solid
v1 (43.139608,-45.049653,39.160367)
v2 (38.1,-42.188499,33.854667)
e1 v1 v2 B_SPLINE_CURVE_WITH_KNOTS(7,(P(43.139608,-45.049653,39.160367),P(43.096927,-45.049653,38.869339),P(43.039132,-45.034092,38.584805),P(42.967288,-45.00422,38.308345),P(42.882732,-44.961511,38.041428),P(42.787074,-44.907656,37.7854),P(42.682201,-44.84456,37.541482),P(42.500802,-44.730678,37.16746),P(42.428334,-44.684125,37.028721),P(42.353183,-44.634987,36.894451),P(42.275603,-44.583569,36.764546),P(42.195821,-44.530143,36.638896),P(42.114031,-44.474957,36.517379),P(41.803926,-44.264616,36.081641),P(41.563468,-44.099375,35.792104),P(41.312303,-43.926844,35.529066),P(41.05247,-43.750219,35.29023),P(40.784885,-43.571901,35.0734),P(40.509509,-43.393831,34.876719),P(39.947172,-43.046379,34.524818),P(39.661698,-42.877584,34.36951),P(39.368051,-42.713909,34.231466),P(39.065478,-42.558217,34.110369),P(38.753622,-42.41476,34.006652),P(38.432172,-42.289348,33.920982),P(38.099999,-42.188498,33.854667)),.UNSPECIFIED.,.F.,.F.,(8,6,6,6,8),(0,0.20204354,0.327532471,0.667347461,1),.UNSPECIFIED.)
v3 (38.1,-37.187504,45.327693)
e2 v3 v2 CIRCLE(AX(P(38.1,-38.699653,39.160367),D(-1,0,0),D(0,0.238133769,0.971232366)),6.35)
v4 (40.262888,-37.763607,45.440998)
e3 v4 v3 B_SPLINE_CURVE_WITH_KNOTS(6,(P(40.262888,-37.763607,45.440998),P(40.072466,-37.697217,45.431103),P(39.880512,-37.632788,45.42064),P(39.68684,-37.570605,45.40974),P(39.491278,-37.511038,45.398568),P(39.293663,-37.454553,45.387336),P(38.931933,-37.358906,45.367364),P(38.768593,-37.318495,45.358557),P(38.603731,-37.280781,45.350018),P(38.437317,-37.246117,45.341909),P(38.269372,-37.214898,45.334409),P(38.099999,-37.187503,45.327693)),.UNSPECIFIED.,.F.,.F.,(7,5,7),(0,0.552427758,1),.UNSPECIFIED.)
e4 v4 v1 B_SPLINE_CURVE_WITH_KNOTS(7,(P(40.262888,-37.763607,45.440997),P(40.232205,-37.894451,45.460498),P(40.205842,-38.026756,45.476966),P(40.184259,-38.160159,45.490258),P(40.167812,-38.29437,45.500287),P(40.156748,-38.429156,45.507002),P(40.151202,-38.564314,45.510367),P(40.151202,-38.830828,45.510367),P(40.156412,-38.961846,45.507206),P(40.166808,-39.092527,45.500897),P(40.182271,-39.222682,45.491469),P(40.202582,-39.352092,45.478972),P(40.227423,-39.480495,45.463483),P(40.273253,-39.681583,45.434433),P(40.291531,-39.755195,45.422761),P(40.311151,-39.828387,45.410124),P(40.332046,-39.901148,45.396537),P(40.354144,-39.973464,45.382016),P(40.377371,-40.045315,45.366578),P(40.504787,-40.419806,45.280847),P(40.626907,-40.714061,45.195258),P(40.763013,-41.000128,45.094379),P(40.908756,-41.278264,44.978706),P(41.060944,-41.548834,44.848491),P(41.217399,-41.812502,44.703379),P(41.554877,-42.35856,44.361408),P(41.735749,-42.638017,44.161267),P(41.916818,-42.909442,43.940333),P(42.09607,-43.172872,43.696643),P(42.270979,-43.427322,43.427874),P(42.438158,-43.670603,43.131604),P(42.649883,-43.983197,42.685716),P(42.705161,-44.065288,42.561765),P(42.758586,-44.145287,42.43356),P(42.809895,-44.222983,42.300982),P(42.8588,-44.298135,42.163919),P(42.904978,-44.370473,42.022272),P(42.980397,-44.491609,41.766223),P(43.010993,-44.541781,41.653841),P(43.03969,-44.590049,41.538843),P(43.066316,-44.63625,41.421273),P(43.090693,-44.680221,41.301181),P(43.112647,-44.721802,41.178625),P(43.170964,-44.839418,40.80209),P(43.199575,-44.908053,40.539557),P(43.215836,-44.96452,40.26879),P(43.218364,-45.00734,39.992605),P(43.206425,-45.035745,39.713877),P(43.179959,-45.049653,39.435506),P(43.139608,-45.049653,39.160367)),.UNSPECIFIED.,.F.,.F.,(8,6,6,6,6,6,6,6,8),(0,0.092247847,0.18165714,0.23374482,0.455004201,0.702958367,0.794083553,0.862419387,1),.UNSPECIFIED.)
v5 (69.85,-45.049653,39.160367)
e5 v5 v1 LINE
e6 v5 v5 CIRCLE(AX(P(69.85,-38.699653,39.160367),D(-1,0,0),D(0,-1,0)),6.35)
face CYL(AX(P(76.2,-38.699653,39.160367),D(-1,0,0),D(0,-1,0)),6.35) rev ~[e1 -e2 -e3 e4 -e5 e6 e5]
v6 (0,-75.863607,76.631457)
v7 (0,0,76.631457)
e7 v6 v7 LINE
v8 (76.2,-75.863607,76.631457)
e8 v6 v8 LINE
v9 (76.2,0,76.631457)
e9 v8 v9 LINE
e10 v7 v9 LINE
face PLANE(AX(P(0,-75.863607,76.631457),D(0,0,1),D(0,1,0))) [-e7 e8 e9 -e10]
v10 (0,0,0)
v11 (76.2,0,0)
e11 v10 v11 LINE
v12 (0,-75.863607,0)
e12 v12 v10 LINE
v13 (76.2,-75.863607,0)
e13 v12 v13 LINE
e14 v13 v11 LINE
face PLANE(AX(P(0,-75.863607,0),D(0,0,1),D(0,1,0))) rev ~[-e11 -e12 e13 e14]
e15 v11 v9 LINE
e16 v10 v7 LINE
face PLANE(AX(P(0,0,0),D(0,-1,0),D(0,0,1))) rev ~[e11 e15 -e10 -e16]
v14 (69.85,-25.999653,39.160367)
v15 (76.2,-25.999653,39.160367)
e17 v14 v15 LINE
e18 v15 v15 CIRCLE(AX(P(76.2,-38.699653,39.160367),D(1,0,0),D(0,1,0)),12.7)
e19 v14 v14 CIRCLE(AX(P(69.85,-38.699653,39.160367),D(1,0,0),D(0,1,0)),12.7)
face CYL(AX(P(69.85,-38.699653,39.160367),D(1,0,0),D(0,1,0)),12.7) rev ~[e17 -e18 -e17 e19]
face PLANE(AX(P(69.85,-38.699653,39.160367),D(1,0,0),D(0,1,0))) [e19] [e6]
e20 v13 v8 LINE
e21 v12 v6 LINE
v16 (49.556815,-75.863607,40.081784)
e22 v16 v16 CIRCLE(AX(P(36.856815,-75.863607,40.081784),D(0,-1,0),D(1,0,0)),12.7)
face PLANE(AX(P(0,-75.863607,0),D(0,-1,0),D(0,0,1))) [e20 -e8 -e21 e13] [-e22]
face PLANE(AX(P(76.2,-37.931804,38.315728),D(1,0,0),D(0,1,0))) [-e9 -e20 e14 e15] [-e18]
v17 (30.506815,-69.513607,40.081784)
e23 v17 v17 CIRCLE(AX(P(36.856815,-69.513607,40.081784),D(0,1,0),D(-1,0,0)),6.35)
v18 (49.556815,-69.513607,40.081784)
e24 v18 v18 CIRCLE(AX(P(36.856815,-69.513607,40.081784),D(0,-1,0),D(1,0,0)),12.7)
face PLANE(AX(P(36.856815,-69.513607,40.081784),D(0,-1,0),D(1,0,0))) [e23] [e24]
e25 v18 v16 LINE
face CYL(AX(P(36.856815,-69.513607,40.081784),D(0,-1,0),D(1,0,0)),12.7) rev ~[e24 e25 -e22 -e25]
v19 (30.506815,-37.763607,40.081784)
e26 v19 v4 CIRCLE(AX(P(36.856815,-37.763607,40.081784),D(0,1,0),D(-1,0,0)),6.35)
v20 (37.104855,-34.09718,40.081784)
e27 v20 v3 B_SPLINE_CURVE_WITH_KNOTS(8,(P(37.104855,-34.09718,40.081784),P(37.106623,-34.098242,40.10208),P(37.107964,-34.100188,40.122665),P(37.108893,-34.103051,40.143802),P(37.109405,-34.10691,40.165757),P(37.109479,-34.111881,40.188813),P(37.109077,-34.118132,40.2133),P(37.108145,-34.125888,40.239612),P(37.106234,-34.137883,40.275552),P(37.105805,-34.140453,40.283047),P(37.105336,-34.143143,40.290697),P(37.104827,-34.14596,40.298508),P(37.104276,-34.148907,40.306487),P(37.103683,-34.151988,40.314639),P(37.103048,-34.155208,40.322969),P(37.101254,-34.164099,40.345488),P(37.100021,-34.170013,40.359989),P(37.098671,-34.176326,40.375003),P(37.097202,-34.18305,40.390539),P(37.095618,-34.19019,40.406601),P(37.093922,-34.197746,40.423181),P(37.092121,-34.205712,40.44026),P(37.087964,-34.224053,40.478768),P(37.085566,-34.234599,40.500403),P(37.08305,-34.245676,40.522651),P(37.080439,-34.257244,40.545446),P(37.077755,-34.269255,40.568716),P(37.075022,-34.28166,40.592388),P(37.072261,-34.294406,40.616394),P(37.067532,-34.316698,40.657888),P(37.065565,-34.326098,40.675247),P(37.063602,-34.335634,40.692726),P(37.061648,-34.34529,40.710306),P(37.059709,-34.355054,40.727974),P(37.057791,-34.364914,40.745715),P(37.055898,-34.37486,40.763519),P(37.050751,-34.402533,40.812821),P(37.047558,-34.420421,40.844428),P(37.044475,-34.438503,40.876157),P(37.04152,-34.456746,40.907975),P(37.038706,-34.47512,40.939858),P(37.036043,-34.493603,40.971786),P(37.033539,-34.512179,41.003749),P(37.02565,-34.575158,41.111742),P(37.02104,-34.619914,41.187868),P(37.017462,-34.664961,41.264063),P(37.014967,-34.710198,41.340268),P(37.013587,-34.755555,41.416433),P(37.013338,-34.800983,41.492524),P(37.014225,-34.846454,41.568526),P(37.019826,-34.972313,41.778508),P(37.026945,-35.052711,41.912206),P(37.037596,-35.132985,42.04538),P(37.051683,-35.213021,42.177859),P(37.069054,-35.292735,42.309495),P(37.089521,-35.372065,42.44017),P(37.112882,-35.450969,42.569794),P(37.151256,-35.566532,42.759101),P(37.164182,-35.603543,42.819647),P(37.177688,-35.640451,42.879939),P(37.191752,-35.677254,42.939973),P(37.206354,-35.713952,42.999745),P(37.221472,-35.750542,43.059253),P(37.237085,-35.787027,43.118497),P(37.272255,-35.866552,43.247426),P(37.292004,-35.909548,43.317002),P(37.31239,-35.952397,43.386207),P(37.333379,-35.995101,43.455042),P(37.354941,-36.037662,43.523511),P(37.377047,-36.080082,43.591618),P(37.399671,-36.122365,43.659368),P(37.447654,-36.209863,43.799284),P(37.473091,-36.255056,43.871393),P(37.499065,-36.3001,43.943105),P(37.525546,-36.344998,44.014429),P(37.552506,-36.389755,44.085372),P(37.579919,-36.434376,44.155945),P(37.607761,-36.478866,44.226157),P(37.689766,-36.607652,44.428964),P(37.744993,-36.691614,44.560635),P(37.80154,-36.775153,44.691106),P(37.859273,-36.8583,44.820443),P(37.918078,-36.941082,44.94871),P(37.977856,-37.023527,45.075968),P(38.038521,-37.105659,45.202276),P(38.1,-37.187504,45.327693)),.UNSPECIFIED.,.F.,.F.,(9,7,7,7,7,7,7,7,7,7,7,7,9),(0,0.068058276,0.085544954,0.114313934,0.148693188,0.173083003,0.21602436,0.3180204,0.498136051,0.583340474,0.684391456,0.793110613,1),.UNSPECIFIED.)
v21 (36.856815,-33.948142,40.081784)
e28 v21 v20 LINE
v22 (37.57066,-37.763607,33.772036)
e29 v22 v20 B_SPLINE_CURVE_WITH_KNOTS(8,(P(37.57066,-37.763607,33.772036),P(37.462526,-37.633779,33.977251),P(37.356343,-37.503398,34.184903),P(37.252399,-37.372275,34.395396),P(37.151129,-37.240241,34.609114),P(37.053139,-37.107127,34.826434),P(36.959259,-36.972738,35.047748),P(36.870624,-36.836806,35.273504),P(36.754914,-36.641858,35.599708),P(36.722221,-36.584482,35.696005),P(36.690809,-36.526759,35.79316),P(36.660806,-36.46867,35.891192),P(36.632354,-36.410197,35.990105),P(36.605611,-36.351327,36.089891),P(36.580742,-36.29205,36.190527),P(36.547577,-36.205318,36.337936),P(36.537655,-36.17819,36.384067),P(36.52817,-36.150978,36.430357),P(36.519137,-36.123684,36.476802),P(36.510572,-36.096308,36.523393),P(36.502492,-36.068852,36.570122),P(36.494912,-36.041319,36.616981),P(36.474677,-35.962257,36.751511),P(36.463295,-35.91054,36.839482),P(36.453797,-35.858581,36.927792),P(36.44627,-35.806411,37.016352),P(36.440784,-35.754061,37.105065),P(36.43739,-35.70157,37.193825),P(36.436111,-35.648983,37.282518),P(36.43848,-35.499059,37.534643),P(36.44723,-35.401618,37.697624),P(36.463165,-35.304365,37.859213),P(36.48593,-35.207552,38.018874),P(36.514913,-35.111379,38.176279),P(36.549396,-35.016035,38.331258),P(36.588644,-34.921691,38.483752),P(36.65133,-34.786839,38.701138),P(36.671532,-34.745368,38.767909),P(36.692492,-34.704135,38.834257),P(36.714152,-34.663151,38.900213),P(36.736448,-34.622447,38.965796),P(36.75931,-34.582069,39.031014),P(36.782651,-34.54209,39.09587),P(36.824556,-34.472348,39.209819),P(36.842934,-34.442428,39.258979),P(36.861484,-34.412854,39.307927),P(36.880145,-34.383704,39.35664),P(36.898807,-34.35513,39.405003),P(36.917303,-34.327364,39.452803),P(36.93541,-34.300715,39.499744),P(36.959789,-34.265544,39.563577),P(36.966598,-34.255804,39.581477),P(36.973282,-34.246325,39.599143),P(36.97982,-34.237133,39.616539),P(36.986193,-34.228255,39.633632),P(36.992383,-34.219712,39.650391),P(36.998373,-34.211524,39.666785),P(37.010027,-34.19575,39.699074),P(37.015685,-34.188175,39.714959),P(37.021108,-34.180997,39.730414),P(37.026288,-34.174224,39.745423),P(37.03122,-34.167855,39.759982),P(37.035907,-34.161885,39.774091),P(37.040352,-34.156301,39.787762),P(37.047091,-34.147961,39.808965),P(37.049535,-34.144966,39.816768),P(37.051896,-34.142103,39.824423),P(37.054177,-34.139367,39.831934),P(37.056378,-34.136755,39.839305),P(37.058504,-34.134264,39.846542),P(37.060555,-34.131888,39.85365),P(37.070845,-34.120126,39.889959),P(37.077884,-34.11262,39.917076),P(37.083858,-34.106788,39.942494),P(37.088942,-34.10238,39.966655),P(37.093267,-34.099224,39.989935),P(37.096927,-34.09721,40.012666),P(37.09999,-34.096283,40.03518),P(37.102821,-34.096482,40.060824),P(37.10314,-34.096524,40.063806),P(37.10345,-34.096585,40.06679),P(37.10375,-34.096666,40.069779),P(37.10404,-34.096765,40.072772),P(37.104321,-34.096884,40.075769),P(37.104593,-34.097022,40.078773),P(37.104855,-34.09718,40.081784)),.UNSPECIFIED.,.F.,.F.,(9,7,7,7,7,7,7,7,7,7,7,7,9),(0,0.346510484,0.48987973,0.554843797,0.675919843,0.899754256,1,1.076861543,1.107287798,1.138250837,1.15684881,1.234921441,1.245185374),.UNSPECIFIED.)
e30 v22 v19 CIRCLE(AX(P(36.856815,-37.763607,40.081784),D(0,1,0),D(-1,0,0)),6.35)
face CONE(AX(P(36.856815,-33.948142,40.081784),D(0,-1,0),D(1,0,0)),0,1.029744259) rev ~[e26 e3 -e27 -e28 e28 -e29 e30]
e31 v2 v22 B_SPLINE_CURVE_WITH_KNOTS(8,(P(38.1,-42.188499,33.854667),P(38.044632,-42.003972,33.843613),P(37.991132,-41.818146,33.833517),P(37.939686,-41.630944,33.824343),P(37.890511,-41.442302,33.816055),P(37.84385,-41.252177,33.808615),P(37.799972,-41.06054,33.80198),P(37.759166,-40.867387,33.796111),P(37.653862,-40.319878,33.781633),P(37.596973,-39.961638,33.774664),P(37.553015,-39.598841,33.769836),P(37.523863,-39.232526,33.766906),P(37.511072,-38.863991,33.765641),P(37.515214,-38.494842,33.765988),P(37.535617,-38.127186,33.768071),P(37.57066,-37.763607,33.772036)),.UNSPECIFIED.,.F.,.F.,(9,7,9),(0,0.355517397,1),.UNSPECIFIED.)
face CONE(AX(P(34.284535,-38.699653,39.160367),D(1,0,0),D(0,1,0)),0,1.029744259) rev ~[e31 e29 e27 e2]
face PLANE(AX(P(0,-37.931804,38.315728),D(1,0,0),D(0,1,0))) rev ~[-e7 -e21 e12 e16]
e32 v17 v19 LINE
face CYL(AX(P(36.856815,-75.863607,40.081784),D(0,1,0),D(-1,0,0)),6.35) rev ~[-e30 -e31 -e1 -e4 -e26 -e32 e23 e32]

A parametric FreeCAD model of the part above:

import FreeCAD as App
import Part
import Sketcher

V = App.Vector
Q = App.Units.Quantity


def add_polygon(sketch, points):
    """Adds a closed chain of lines whose ends are joined by coincident constraints."""
    first, n = sketch.GeometryCount, len(points)
    for a, b in zip(points, points[1:] + points[:1]):
        sketch.addGeometry(Part.LineSegment(App.Vector(*a, 0), App.Vector(*b, 0)), False)
    for i in range(n):
        sketch.addConstraint(Sketcher.Constraint("Coincident", first + i, 2, first + (i + 1) % n, 1))

doc = App.newDocument("Part")
params = doc.addObject("Spreadsheet::Sheet", "Params")
for row, (alias, value) in enumerate([
    ("pad1_length", "3 in"),
    ("sketch2_diameter", "0.5 in"),
    ("hole_diameter", "0.5 in"),
    ("hole_depth", "1.5 in"),
    ("hole_cbore_diameter", "1 in"),
    ("hole_cbore_depth", "0.25 in"),
    ("sketch3_diameter", "0.5 in"),
    ("hole2_diameter", "0.5 in"),
    ("hole2_depth", "1.5 in"),
    ("hole2_cbore_diameter", "1 in"),
    ("hole2_cbore_depth", "0.25 in"),
], start=1):
    params.set(f"A{row}", alias)
    params.set(f"B{row}", "=" + value)
    params.setAlias(f"B{row}", alias)

body = doc.addObject("PartDesign::Body", "Body")

sketch1 = body.newObject("Sketcher::SketchObject", "Sketch")
sketch1.AttachmentSupport = (doc.getObject("YZ_Plane"), [""])
sketch1.MapMode = "FlatFace"
add_polygon(sketch1, [(-75.863607, 76.631457), (-75.863607, 0), (0, 0), (0, 76.631457)])
sketch1.addConstraint([
    Sketcher.Constraint("Vertical", 0),
    Sketcher.Constraint("Horizontal", 1),
    Sketcher.Constraint("Vertical", 2),
    Sketcher.Constraint("Horizontal", 3),
    Sketcher.Constraint("Coincident", 1, 2, -1, 1),
    Sketcher.Constraint("DistanceX", 1, 1, 1, 2, 75.863607),
    Sketcher.Constraint("DistanceY", 0, 2, 0, 1, 76.631457),
])
pad1 = body.newObject("PartDesign::Pad", "Pad")
pad1.Profile = sketch1
pad1.setExpression("Length", "Params.pad1_length")

sketch2 = body.newObject("Sketcher::SketchObject", "Sketch001")
sketch2.AttachmentSupport = (doc.getObject("XZ_Plane"), [""])
sketch2.MapMode = "FlatFace"
sketch2.AttachmentOffset = App.Placement(V(0, 0, 75.863607), App.Rotation())
sketch2.addGeometry(Part.Circle(V(36.856815, 40.081784, 0), V(0, 0, 1), 6.35), False)
sketch2.addConstraint([
    Sketcher.Constraint("Diameter", 0, Q("0.5 in")),
    Sketcher.Constraint("DistanceX", -1, 1, 0, 3, 36.856815),
    Sketcher.Constraint("DistanceY", -1, 1, 0, 3, 40.081784),
])
sketch2.setExpression("Constraints[0]", "Params.sketch2_diameter")
doc.recompute()
hole = body.newObject("PartDesign::Hole", "Hole")
hole.Profile = sketch2
hole.ThreadType = "None"
hole.setExpression("Diameter", "Params.hole_diameter")
hole.DepthType = "Dimension"
hole.setExpression("Depth", "Params.hole_depth")
hole.DrillPoint = "Angled"
hole.DrillPointAngle = 118
hole.HoleCutType = "Counterbore"
hole.setExpression("HoleCutDiameter", "Params.hole_cbore_diameter")
hole.setExpression("HoleCutDepth", "Params.hole_cbore_depth")

sketch3 = body.newObject("Sketcher::SketchObject", "Sketch002")
sketch3.AttachmentSupport = (doc.getObject("YZ_Plane"), [""])
sketch3.MapMode = "FlatFace"
sketch3.AttachmentOffset = App.Placement(V(0, 0, 3 * 25.4), App.Rotation())
sketch3.addGeometry(Part.Circle(V(-38.699653, 39.160367, 0), V(0, 0, 1), 6.35), False)
sketch3.addConstraint([
    Sketcher.Constraint("Diameter", 0, Q("0.5 in")),
    Sketcher.Constraint("DistanceX", 0, 3, -1, 1, 38.699653),
    Sketcher.Constraint("DistanceY", -1, 1, 0, 3, 39.160367),
])
sketch3.setExpression("Constraints[0]", "Params.sketch3_diameter")
doc.recompute()
hole2 = body.newObject("PartDesign::Hole", "Hole001")
hole2.Profile = sketch3
hole2.ThreadType = "None"
hole2.setExpression("Diameter", "Params.hole2_diameter")
hole2.DepthType = "Dimension"
hole2.setExpression("Depth", "Params.hole2_depth")
hole2.DrillPoint = "Angled"
hole2.DrillPointAngle = 118
hole2.HoleCutType = "Counterbore"
hole2.setExpression("HoleCutDiameter", "Params.hole2_cbore_diameter")
hole2.setExpression("HoleCutDepth", "Params.hole2_cbore_depth")

doc.recompute()
